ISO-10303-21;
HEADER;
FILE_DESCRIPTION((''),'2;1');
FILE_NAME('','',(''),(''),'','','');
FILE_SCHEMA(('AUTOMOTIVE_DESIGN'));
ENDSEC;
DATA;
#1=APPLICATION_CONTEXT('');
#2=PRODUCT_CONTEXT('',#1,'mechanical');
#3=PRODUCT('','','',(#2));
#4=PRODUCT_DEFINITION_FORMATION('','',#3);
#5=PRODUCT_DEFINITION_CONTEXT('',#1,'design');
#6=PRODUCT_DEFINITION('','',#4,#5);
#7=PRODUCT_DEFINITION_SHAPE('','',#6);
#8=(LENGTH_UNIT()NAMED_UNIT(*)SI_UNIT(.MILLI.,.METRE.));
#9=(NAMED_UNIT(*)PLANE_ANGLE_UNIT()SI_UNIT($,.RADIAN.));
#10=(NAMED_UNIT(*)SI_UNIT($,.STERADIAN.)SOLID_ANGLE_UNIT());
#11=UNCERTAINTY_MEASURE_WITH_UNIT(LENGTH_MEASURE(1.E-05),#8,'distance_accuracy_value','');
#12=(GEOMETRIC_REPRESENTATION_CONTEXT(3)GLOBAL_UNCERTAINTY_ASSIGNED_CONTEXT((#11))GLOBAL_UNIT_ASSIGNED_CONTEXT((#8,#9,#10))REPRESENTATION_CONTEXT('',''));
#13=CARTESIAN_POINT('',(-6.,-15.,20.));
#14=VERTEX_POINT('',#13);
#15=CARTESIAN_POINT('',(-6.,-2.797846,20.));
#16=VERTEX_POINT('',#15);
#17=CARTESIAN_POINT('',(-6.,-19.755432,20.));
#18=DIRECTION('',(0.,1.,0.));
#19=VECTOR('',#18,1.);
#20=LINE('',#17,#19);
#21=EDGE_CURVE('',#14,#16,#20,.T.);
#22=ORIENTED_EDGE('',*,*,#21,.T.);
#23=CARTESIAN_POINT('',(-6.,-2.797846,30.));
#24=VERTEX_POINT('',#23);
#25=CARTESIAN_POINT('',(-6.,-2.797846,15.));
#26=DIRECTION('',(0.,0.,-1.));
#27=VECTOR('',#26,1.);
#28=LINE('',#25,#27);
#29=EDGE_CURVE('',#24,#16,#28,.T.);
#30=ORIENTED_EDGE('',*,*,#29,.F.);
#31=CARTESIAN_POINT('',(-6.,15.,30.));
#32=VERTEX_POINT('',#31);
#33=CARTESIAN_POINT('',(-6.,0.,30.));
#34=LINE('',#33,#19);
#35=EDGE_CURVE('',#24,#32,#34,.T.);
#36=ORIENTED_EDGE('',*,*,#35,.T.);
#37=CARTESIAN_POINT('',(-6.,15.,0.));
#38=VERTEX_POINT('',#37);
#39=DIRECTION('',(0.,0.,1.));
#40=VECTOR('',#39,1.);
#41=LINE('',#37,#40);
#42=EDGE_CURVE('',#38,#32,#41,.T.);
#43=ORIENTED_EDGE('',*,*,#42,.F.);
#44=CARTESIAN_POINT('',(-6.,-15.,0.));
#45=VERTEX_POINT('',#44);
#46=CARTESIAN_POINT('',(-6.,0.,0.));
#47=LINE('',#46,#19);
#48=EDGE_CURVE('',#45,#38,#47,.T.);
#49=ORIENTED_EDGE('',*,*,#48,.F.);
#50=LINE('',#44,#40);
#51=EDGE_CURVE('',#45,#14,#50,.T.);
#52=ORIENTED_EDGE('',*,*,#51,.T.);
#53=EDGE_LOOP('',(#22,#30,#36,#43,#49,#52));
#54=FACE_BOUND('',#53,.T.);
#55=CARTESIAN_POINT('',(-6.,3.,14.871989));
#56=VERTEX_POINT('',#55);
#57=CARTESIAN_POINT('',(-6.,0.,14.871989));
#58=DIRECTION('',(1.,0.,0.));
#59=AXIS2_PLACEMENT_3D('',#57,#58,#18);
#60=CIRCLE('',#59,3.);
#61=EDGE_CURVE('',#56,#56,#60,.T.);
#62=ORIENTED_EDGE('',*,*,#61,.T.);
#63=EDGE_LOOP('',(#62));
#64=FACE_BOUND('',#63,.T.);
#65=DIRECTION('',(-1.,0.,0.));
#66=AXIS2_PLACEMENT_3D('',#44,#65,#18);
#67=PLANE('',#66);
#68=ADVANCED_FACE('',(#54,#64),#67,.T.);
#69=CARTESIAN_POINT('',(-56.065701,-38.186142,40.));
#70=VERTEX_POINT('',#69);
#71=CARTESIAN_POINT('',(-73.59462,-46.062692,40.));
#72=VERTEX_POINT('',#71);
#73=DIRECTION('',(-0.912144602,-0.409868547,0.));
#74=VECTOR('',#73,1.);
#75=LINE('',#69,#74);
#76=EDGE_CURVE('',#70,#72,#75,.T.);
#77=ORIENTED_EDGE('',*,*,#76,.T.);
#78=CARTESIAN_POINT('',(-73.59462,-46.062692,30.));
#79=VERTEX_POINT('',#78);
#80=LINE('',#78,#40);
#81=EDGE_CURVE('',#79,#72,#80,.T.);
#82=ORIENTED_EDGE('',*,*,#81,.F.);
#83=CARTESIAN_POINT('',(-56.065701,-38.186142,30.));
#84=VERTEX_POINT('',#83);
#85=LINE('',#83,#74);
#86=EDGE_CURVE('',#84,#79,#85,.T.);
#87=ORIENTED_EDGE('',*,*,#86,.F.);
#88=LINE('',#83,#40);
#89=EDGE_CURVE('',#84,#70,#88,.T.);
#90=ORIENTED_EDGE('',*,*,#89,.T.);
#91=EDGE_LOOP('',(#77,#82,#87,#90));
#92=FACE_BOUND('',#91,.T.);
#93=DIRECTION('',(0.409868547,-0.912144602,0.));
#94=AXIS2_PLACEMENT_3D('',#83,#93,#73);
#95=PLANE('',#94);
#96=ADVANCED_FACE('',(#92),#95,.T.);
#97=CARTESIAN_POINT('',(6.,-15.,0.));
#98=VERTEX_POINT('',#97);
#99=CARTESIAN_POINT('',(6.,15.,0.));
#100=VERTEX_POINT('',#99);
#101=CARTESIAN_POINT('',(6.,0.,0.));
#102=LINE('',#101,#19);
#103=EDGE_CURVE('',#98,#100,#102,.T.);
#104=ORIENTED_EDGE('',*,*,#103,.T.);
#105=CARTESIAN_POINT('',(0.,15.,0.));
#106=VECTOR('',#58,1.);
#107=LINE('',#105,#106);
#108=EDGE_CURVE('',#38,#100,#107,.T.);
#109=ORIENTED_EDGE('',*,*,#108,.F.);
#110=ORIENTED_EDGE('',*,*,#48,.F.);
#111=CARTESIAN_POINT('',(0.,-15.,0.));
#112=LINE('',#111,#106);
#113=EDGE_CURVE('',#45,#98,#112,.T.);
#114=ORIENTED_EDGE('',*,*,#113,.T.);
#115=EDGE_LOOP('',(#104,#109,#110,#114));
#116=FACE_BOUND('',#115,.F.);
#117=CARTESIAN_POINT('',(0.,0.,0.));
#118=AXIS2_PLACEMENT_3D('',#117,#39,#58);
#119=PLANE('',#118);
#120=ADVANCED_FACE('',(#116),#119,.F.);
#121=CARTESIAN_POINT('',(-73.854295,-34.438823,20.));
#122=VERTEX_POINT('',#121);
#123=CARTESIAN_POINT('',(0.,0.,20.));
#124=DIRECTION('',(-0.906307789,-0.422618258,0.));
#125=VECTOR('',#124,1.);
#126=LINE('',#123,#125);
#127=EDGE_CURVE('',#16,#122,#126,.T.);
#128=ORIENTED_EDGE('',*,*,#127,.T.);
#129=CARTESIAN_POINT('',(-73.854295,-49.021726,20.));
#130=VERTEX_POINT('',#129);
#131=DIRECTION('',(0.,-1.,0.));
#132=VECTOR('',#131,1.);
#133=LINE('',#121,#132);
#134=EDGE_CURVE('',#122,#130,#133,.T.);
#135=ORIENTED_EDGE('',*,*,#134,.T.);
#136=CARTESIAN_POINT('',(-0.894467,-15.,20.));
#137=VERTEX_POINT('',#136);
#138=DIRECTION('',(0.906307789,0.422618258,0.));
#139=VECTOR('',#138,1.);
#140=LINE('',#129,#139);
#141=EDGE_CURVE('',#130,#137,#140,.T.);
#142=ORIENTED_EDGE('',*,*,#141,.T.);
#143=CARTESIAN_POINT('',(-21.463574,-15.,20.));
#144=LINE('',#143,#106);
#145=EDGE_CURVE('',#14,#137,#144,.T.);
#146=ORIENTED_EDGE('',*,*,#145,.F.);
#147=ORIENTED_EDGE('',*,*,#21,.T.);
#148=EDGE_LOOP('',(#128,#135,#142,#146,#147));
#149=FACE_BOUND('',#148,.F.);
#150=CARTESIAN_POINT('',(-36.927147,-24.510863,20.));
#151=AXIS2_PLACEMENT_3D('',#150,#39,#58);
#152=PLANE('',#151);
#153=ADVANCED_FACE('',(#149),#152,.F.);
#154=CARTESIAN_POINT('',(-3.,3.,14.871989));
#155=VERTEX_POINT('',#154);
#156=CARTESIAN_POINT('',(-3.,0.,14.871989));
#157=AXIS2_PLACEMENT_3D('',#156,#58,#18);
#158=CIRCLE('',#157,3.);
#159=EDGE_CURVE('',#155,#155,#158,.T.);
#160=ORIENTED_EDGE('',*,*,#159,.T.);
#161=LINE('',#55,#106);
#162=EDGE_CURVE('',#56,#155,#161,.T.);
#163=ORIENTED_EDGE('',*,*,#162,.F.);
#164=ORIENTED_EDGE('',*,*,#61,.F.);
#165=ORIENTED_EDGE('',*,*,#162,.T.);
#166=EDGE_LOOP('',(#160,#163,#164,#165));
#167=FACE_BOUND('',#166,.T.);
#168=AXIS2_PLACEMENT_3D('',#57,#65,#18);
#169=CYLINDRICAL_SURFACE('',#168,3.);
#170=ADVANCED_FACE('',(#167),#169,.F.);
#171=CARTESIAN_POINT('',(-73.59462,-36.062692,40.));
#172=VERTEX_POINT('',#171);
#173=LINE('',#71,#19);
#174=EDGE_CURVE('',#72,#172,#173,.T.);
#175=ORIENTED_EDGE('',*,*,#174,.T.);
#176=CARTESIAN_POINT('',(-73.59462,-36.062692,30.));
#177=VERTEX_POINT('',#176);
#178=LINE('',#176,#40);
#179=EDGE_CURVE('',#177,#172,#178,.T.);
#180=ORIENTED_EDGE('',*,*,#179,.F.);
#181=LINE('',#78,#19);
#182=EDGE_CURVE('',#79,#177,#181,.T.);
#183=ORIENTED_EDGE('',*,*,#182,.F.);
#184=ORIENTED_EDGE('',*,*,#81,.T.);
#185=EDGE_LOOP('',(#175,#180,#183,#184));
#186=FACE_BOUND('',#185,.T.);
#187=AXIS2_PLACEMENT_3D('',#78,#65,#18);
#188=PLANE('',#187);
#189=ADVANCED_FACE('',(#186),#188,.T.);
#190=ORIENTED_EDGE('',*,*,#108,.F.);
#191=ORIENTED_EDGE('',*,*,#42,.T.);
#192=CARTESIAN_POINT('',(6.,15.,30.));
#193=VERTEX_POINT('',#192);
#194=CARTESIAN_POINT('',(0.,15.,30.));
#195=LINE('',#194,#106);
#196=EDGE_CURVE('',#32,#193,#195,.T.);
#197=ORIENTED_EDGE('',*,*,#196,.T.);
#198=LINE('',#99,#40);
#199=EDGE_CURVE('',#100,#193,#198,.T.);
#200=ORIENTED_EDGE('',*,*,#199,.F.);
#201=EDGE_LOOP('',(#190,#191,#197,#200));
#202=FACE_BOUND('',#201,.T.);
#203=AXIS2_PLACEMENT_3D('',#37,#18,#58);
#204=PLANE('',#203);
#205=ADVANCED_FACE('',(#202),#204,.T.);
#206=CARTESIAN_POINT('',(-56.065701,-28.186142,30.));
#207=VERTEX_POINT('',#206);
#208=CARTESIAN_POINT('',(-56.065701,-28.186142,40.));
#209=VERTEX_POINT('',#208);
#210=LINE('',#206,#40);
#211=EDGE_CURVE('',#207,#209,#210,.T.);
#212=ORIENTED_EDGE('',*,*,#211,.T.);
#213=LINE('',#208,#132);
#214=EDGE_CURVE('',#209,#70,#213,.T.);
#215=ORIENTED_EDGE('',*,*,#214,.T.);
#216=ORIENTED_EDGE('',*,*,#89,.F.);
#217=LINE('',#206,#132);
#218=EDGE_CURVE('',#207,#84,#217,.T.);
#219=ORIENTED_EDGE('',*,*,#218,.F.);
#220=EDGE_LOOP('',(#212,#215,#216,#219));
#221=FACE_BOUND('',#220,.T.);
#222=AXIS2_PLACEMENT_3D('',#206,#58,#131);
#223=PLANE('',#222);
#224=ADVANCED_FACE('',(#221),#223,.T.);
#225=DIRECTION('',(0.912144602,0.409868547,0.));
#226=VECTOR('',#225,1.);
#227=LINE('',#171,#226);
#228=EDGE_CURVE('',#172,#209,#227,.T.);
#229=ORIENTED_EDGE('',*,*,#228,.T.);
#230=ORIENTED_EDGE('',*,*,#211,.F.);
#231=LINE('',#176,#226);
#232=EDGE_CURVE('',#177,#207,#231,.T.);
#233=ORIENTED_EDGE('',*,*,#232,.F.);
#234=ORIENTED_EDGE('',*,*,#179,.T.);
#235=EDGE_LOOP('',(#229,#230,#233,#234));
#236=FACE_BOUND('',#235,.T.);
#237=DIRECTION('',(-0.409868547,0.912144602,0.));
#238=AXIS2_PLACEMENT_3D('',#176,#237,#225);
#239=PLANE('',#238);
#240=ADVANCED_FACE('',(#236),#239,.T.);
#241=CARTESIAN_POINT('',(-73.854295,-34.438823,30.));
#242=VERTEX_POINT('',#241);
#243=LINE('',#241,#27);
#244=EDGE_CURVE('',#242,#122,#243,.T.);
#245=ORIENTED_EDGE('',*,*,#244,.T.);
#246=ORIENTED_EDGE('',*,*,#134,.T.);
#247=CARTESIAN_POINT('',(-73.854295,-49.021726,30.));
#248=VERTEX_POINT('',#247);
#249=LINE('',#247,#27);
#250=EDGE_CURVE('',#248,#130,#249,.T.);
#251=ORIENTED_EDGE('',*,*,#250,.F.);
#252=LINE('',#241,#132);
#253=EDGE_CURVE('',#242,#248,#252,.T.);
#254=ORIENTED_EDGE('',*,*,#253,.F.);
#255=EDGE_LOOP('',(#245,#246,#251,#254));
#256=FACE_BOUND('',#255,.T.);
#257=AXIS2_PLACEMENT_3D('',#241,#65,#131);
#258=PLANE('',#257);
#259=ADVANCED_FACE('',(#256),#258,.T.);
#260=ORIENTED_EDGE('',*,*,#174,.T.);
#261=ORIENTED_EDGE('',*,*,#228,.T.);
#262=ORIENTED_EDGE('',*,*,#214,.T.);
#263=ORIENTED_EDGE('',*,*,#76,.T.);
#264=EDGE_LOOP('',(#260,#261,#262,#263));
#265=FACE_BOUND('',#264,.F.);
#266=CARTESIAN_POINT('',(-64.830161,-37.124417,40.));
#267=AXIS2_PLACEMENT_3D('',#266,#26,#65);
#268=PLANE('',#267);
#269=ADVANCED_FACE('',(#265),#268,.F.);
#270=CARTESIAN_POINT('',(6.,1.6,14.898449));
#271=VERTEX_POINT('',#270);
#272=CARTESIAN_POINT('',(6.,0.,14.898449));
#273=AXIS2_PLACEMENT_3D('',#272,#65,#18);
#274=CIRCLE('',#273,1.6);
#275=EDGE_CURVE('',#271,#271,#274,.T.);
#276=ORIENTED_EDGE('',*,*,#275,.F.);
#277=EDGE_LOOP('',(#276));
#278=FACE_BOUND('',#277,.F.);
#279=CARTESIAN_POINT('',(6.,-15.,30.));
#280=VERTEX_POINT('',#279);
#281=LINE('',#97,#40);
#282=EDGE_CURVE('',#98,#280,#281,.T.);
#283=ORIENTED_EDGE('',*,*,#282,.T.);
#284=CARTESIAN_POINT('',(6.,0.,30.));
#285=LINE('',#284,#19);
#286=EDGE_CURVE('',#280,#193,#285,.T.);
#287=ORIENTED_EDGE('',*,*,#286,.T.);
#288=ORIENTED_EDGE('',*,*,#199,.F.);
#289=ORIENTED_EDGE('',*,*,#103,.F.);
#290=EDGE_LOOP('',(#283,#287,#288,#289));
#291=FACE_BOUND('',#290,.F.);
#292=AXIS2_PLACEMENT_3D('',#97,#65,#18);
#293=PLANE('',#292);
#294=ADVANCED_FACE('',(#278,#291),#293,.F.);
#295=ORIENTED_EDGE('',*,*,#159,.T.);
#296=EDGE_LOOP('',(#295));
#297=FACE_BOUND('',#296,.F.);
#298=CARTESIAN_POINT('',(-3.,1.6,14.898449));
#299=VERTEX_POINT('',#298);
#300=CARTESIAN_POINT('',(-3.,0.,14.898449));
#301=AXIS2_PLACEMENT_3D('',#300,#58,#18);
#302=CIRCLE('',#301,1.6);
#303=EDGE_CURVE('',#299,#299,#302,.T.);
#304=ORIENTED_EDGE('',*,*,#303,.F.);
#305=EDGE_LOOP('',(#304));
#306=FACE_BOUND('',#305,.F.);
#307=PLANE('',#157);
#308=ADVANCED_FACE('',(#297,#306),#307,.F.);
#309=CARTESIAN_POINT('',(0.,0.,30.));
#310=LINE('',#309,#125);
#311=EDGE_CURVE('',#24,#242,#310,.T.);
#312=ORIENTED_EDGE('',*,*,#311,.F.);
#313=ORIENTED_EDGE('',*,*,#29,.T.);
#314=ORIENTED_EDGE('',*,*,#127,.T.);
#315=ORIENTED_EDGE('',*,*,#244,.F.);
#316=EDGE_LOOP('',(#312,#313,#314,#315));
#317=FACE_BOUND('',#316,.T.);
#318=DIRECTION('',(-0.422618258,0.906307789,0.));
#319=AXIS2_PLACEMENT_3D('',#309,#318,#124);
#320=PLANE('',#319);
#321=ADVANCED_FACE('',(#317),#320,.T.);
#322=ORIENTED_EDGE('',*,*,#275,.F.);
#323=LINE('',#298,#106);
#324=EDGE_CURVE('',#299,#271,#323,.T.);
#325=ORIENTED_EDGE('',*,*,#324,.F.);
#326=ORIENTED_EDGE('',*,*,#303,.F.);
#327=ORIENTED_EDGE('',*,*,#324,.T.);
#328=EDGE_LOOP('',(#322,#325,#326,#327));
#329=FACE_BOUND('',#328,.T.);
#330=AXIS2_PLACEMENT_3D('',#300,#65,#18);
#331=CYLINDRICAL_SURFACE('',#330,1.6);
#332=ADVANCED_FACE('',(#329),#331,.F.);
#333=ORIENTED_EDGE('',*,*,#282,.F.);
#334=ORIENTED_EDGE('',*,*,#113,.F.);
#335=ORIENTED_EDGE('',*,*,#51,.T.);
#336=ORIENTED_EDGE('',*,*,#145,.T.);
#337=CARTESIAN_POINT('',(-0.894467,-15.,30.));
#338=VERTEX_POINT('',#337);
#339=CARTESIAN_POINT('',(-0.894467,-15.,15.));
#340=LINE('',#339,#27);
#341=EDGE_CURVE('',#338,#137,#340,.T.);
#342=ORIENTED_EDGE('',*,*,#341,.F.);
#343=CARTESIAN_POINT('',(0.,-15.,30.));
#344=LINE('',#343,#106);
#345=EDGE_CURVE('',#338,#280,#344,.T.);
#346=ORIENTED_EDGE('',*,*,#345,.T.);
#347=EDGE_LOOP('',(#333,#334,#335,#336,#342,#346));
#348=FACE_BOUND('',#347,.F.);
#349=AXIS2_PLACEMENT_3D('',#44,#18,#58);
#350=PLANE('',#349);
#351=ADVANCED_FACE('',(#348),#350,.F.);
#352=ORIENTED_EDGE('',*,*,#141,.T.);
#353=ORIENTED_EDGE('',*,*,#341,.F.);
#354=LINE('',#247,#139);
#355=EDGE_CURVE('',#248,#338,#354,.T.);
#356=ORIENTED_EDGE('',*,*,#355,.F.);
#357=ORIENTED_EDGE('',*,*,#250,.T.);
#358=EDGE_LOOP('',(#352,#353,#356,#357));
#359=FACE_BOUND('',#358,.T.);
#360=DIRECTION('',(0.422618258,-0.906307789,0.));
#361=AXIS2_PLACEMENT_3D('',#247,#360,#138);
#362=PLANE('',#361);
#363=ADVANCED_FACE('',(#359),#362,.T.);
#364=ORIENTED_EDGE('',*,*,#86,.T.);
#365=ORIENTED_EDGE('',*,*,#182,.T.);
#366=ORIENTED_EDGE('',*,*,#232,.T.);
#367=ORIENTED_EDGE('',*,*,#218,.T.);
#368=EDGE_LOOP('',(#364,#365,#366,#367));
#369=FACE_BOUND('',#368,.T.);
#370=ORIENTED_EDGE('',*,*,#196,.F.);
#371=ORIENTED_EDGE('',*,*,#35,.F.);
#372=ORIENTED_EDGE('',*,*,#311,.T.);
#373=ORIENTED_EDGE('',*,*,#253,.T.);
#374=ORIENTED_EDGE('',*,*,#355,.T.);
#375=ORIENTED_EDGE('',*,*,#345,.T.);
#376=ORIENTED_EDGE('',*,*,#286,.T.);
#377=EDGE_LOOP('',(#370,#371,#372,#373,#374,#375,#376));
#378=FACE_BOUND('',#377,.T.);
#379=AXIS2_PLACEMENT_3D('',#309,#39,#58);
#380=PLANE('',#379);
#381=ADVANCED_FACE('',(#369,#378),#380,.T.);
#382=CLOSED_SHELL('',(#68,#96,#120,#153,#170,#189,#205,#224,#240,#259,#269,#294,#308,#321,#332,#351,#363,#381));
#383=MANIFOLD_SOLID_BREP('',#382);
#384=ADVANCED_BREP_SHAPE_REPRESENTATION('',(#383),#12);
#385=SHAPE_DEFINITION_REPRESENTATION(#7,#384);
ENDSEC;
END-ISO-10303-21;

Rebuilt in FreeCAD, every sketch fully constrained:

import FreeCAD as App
import Part
import Sketcher
Q = App.Units.Quantity

doc = App.newDocument("Part")
body = doc.addObject("PartDesign::Body", "Body")

sketch1 = body.newObject("Sketcher::SketchObject", "Sketch")
sketch1.AttachmentSupport = (doc.getObject("XY_Plane"), [""])
sketch1.MapMode = "FlatFace"
sketch1.addGeometry([
    Part.LineSegment(App.Vector(-6, 15, 0), App.Vector(-6, -15, 0)),
    Part.LineSegment(App.Vector(-6, -15, 0), App.Vector(6, -15, 0)),
    Part.LineSegment(App.Vector(6, -15, 0), App.Vector(6, 15, 0)),
    Part.LineSegment(App.Vector(6, 15, 0), App.Vector(-6, 15, 0)),
], False)
sketch1.addConstraint([
    Sketcher.Constraint("Coincident", 0, 2, 1, 1),
    Sketcher.Constraint("Coincident", 1, 2, 2, 1),
    Sketcher.Constraint("Coincident", 2, 2, 3, 1),
    Sketcher.Constraint("Coincident", 3, 2, 0, 1),
    Sketcher.Constraint("Vertical", 0),
    Sketcher.Constraint("Horizontal", 1),
    Sketcher.Constraint("Vertical", 2),
    Sketcher.Constraint("Horizontal", 3),
    Sketcher.Constraint("Symmetric", 0, 2, 2, 2, -1, 1),
    Sketcher.Constraint("DistanceX", 1, 1, 1, 2, 12.0),
    Sketcher.Constraint("DistanceY", 0, 2, 0, 1, 30.0),
])
pad1 = body.newObject("PartDesign::Pad", "Pad")
pad1.Profile = sketch1
pad1.Length = 30

sketch2 = body.newObject("Sketcher::SketchObject", "Sketch001")
sketch2.AttachmentSupport = (doc.getObject("XY_Plane"), [""])
sketch2.MapMode = "FlatFace"
sketch2.AttachmentOffset = App.Placement(App.Vector(0, 0, 30), App.Rotation())
sketch2.addGeometry([
    Part.LineSegment(App.Vector(0, 0, 0), App.Vector(-73.854295, -34.438823, 0)),
    Part.LineSegment(App.Vector(-73.854295, -34.438823, 0), App.Vector(-73.854295, -49.021726, 0)),
    Part.LineSegment(App.Vector(-73.854295, -49.021726, 0), App.Vector(0, -14.582903, 0)),
    Part.LineSegment(App.Vector(0, -14.582903, 0), App.Vector(0, 0, 0)),
], False)
sketch2.addConstraint([
    Sketcher.Constraint("Coincident", 0, 2, 1, 1),
    Sketcher.Constraint("Coincident", 1, 2, 2, 1),
    Sketcher.Constraint("Coincident", 2, 2, 3, 1),
    Sketcher.Constraint("Coincident", 3, 2, 0, 1),
    Sketcher.Constraint("Vertical", 1),
    Sketcher.Constraint("Vertical", 3),
    Sketcher.Constraint("Coincident", 3, 2, -1, 1),
    Sketcher.Constraint("Parallel", 0, 2),
    Sketcher.Constraint("Angle", 0, Q("-155 deg")),
    Sketcher.Constraint("Distance", 0, 81.489198),
    Sketcher.Constraint("DistanceY", 1, 2, 1, 1, 14.582903),
])
pad2 = body.newObject("PartDesign::Pad", "Pad001")
pad2.Profile = sketch2
pad2.Length = 10
pad2.Reversed = True

sketch3 = body.newObject("Sketcher::SketchObject", "Sketch002")
sketch3.AttachmentSupport = (doc.getObject("YZ_Plane"), [""])
sketch3.MapMode = "FlatFace"
sketch3.AttachmentOffset = App.Placement(App.Vector(0, 0, -6), App.Rotation())
sketch3.addGeometry(Part.Circle(App.Vector(0, 14.871989, 0), App.Vector(0, 0, 1), 3), False)
sketch3.addConstraint([
    Sketcher.Constraint("PointOnObject", 0, 3, -2),
    Sketcher.Constraint("Diameter", 0, 6.0),
    Sketcher.Constraint("DistanceY", -1, 1, 0, 3, 14.871989),
])
pocket1 = body.newObject("PartDesign::Pocket", "Pocket")
pocket1.Profile = sketch3
pocket1.Length = 3
pocket1.Reversed = True

sketch4 = body.newObject("Sketcher::SketchObject", "Sketch003")
sketch4.AttachmentSupport = (doc.getObject("YZ_Plane"), [""])
sketch4.MapMode = "FlatFace"
sketch4.AttachmentOffset = App.Placement(App.Vector(0, 0, -3), App.Rotation())
sketch4.addGeometry(Part.Circle(App.Vector(0, 14.898449, 0), App.Vector(0, 0, 1), 1.6), False)
sketch4.addConstraint([
    Sketcher.Constraint("PointOnObject", 0, 3, -2),
    Sketcher.Constraint("Diameter", 0, 3.2),
    Sketcher.Constraint("DistanceY", -1, 1, 0, 3, 14.898449),
])
pocket2 = body.newObject("PartDesign::Pocket", "Pocket001")
pocket2.Profile = sketch4
pocket2.Type = "ThroughAll"
pocket2.Reversed = True

sketch5 = body.newObject("Sketcher::SketchObject", "Sketch004")
sketch5.AttachmentSupport = (doc.getObject("XY_Plane"), [""])
sketch5.MapMode = "FlatFace"
sketch5.AttachmentOffset = App.Placement(App.Vector(0, 0, 30), App.Rotation())
sketch5.addGeometry([
    Part.LineSegment(App.Vector(-56.065701, -28.186142, 0), App.Vector(-73.59462, -36.062692, 0)),
    Part.LineSegment(App.Vector(-73.59462, -36.062692, 0), App.Vector(-73.59462, -46.062692, 0)),
    Part.LineSegment(App.Vector(-73.59462, -46.062692, 0), App.Vector(-56.065701, -38.186142, 0)),
    Part.LineSegment(App.Vector(-56.065701, -38.186142, 0), App.Vector(-56.065701, -28.186142, 0)),
], False)
sketch5.addConstraint([
    Sketcher.Constraint("Coincident", 0, 2, 1, 1),
    Sketcher.Constraint("Coincident", 1, 2, 2, 1),
    Sketcher.Constraint("Coincident", 2, 2, 3, 1),
    Sketcher.Constraint("Coincident", 3, 2, 0, 1),
    Sketcher.Constraint("Vertical", 1),
    Sketcher.Constraint("Vertical", 3),
    Sketcher.Constraint("Parallel", 0, 2),
    Sketcher.Constraint("DistanceY", 1, 2, 1, 1, 10.0),
    Sketcher.Constraint("DistanceX", 2, 2, -1, 1, 56.065701),
    Sketcher.Constraint("Distance", 0, 19.217259),
    Sketcher.Constraint("DistanceX", 0, 2, -1, 1, 73.59462),
    Sketcher.Constraint("DistanceY", 0, 2, -1, 1, 36.062692),
])
pad3 = body.newObject("PartDesign::Pad", "Pad002")
pad3.Profile = sketch5
pad3.Length = 10

doc.recompute()
